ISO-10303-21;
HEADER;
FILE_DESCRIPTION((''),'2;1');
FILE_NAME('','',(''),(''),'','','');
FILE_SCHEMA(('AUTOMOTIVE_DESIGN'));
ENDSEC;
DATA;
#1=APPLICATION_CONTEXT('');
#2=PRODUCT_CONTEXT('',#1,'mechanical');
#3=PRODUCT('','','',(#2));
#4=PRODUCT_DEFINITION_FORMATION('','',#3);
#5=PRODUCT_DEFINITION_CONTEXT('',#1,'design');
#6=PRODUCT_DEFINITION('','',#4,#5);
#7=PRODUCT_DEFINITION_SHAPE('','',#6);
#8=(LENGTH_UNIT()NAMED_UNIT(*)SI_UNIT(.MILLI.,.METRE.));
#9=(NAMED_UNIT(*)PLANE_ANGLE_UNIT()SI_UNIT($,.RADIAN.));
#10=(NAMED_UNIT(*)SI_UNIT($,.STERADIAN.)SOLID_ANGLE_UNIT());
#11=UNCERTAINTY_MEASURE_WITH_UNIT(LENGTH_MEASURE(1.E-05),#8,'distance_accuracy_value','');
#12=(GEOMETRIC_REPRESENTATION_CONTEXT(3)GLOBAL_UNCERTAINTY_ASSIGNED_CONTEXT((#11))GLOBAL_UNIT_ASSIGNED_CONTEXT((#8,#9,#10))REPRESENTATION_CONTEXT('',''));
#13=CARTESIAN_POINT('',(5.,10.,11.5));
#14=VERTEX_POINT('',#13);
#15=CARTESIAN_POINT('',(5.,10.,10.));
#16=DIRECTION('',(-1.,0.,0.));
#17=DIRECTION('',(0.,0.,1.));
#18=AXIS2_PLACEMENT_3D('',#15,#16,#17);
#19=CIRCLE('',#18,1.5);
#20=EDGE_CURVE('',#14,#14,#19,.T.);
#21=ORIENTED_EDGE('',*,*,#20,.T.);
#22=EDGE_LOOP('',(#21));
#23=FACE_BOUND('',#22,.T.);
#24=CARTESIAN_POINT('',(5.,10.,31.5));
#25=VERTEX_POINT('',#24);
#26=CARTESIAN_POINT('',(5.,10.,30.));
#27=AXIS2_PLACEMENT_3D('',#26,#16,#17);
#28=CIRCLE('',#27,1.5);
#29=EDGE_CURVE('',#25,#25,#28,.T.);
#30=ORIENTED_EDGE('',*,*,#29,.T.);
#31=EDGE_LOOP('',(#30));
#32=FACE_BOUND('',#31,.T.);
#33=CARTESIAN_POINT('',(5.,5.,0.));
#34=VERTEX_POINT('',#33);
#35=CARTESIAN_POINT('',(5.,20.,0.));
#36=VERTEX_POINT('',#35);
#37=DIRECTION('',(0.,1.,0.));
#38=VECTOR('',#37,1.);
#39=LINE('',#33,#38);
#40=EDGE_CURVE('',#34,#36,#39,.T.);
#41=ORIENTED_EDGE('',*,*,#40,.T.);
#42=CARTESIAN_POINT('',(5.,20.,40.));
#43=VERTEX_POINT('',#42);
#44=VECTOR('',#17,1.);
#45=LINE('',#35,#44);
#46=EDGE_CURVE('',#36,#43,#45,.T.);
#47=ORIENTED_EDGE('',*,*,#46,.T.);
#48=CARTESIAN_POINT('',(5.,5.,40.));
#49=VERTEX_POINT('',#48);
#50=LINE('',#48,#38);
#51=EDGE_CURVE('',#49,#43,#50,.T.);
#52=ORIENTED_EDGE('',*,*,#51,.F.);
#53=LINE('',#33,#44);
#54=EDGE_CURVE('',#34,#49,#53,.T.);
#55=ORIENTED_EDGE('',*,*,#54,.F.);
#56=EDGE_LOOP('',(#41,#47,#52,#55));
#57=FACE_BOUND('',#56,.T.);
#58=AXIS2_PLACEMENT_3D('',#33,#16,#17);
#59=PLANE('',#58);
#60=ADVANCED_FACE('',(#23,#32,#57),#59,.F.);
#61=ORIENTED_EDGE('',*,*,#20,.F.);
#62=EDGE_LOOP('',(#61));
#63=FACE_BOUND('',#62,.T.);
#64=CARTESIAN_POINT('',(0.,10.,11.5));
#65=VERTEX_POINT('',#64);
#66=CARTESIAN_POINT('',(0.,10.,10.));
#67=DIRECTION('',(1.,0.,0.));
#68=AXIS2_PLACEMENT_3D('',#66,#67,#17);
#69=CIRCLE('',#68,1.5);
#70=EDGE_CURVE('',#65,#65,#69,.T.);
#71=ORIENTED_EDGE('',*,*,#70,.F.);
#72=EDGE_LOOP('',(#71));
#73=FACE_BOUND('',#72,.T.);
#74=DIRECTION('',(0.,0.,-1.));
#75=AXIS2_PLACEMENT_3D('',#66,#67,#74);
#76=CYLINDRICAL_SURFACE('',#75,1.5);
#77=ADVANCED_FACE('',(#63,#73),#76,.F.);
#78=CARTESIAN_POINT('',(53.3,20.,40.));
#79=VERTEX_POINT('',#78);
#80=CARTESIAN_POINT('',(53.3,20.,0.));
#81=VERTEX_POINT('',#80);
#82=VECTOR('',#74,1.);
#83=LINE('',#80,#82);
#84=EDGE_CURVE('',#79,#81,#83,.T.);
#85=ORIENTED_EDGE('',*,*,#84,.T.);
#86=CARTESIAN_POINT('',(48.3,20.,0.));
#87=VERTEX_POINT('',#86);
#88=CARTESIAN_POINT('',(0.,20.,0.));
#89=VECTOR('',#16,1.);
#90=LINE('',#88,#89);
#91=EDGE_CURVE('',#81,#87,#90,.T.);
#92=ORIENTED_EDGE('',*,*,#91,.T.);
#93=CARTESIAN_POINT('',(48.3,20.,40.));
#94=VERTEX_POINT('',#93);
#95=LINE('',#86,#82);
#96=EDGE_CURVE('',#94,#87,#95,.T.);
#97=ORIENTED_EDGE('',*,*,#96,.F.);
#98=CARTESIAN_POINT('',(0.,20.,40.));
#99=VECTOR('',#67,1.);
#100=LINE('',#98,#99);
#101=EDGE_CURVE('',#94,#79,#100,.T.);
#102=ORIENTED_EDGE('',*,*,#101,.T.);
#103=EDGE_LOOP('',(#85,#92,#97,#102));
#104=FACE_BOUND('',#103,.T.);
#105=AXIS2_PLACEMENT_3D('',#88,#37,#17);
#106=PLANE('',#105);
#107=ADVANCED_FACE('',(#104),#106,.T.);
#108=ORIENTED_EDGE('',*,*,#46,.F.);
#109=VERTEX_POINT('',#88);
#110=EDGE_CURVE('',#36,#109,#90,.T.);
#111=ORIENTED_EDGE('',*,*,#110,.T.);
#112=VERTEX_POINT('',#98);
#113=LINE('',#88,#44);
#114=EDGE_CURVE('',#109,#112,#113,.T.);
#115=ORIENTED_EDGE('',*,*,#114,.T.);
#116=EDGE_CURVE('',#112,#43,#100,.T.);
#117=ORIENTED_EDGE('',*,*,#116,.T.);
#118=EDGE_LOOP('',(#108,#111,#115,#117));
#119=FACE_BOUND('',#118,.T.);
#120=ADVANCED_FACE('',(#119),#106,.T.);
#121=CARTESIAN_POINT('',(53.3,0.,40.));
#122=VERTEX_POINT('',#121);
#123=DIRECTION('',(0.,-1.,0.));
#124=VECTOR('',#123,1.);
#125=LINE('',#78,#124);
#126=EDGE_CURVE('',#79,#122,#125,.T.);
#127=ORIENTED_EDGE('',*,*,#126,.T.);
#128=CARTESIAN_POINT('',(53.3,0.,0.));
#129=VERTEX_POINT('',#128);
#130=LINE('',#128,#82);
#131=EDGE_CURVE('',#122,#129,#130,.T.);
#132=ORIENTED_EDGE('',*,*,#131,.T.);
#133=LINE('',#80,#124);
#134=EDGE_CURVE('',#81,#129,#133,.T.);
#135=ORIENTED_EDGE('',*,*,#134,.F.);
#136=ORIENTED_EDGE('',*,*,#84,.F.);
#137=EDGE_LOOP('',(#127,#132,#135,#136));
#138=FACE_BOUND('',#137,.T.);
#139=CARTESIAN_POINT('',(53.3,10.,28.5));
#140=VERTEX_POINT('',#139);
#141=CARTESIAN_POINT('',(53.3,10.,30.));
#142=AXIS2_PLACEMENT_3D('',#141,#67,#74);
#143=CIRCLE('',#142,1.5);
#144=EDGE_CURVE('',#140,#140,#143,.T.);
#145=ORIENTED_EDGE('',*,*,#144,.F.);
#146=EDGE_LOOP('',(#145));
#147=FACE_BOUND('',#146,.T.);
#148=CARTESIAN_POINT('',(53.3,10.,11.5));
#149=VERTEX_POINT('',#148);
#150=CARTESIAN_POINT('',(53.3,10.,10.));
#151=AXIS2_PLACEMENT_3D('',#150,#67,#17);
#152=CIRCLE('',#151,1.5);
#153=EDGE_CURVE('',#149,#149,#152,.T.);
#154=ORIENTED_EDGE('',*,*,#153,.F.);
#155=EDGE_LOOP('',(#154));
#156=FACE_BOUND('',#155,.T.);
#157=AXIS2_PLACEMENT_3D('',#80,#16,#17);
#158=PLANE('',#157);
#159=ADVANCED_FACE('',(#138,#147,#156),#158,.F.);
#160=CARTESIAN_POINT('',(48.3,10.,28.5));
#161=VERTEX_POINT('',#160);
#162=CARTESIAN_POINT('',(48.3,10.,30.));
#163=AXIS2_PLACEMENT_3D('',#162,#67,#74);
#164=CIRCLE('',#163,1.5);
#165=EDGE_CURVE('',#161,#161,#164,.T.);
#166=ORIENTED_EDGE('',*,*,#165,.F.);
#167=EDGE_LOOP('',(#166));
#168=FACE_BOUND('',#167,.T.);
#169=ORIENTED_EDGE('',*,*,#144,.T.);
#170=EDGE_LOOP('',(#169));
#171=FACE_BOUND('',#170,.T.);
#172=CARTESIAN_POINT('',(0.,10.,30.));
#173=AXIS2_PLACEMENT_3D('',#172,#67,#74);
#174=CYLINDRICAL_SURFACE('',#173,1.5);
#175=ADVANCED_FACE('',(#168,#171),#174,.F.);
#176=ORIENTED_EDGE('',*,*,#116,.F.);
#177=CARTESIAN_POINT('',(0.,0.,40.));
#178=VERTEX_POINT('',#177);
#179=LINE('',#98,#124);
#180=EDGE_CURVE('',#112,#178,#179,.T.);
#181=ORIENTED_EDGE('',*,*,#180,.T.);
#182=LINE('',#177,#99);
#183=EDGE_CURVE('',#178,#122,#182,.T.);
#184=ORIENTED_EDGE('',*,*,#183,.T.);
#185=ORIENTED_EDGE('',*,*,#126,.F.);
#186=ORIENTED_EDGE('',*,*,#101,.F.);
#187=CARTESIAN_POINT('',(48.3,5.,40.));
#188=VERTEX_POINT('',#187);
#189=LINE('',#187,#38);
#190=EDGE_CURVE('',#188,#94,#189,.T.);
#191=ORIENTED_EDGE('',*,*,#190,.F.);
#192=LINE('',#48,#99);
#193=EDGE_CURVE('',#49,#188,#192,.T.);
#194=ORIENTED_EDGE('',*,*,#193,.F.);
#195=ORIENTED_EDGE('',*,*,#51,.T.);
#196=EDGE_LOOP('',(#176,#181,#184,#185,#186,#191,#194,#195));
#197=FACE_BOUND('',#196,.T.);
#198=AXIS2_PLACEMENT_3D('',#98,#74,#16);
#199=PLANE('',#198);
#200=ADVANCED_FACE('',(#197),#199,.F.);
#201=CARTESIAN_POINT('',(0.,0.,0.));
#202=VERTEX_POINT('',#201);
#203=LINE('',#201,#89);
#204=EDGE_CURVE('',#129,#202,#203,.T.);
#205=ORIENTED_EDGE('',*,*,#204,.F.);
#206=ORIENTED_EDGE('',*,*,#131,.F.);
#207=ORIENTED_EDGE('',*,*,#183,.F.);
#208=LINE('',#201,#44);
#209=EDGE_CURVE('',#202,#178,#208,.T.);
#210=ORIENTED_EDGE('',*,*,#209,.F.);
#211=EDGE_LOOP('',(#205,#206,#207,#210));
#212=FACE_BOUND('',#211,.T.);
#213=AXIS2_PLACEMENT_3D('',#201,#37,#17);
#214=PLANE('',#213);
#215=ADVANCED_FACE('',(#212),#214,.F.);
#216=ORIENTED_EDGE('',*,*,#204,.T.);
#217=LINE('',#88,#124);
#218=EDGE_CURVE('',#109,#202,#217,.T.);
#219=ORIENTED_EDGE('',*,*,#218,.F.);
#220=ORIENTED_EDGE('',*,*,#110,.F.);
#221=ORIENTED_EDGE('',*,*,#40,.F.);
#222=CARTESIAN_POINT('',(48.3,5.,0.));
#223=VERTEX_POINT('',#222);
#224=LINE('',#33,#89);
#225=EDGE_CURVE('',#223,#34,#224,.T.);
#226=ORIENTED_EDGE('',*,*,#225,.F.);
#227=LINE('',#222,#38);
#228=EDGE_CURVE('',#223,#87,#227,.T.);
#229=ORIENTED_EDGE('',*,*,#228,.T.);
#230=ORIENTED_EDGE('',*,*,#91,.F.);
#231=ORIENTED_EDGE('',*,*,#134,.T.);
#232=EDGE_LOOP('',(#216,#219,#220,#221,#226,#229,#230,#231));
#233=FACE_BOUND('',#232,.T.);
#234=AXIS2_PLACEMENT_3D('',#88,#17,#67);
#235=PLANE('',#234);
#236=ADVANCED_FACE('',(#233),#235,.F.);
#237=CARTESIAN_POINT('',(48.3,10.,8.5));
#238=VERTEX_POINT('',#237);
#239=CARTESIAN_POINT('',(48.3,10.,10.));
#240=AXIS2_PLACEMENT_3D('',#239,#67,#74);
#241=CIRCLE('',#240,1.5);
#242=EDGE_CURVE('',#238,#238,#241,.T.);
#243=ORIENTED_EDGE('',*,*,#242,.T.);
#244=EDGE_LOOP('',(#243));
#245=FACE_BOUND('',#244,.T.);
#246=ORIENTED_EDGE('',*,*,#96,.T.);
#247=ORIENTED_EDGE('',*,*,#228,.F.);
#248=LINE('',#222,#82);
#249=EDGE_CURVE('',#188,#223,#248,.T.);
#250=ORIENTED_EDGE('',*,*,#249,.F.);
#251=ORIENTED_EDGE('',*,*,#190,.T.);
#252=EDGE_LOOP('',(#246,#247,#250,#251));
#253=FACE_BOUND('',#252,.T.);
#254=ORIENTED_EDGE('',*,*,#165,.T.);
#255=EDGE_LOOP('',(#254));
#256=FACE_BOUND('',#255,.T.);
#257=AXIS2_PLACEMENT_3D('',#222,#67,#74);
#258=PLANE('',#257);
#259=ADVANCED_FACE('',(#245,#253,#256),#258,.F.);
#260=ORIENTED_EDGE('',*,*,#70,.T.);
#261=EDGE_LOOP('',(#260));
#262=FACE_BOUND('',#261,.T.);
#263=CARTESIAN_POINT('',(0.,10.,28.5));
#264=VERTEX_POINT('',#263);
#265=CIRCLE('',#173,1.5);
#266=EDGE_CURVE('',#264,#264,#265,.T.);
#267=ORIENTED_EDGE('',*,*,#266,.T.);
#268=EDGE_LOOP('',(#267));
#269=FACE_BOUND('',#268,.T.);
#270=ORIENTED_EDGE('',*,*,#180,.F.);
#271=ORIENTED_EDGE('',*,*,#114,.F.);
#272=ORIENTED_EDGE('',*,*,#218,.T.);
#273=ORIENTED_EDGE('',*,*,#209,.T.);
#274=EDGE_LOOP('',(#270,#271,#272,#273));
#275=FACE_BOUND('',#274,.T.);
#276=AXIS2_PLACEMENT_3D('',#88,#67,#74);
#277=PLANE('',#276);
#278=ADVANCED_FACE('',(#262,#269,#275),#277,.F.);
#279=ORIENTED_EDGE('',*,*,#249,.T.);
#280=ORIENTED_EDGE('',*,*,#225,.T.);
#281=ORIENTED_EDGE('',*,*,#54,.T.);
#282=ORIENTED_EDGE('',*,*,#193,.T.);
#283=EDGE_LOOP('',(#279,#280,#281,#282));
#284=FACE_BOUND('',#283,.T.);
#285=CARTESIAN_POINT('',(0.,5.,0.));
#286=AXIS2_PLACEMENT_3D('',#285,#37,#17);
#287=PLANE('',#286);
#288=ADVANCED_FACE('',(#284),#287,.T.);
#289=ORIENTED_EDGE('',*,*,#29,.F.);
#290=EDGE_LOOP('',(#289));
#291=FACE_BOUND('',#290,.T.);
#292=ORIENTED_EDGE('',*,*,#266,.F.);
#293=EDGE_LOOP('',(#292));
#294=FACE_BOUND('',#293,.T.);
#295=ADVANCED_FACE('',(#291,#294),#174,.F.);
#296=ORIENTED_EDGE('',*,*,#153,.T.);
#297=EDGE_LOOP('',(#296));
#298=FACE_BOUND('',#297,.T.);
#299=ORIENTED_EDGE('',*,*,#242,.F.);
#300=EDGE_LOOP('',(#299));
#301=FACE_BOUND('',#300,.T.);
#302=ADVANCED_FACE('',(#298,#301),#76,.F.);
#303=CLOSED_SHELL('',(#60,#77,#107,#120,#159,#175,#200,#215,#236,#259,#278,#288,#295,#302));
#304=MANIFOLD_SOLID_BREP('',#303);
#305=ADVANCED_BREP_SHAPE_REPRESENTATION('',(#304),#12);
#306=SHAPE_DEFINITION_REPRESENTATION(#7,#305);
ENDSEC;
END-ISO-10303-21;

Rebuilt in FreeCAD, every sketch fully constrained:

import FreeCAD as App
import Part
import Sketcher

V = App.Vector


def add_polygon(sketch, points):
    """Adds a closed chain of lines whose ends are joined by coincident constraints."""
    first, n = sketch.GeometryCount, len(points)
    for a, b in zip(points, points[1:] + points[:1]):
        sketch.addGeometry(Part.LineSegment(App.Vector(*a, 0), App.Vector(*b, 0)), False)
    for i in range(n):
        sketch.addConstraint(Sketcher.Constraint("Coincident", first + i, 2, first + (i + 1) % n, 1))

doc = App.newDocument("Part")
body = doc.addObject("PartDesign::Body", "Body")

sketch1 = body.newObject("Sketcher::SketchObject", "Sketch")
sketch1.AttachmentSupport = (doc.getObject("XZ_Plane"), [""])
sketch1.MapMode = "FlatFace"
add_polygon(sketch1, [(0, 0), (0, 40), (53.3, 40), (53.3, 0)])
sketch1.addConstraint(Sketcher.Constraint("Vertical", 0))
sketch1.addConstraint(Sketcher.Constraint("Horizontal", 1))
sketch1.addConstraint(Sketcher.Constraint("Vertical", 2))
sketch1.addConstraint(Sketcher.Constraint("Horizontal", 3))
sketch1.addConstraint(Sketcher.Constraint("Coincident", 3, 2, -1, 1))
sketch1.addConstraint(Sketcher.Constraint("DistanceY", 0, 1, 0, 2, 40.0))
sketch1.addConstraint(Sketcher.Constraint("DistanceX", 1, 1, 1, 2, 53.3))
pad1 = body.newObject("PartDesign::Pad", "Pad")
pad1.Profile = sketch1
pad1.Length = 20
pad1.Reversed = True

sketch2 = body.newObject("Sketcher::SketchObject", "Sketch001")
sketch2.AttachmentSupport = (doc.getObject("XZ_Plane"), [""])
sketch2.MapMode = "FlatFace"
sketch2.AttachmentOffset = App.Placement(V(0, 0, -20), App.Rotation())
add_polygon(sketch2, [(5, 0), (5, 40), (48.3, 40), (48.3, 0)])
sketch2.addConstraint(Sketcher.Constraint("Vertical", 0))
sketch2.addConstraint(Sketcher.Constraint("Horizontal", 1))
sketch2.addConstraint(Sketcher.Constraint("Vertical", 2))
sketch2.addConstraint(Sketcher.Constraint("Horizontal", 3))
sketch2.addConstraint(Sketcher.Constraint("PointOnObject", 2, 2, -1))
sketch2.addConstraint(Sketcher.Constraint("DistanceY", 0, 1, 0, 2, 40.0))
sketch2.addConstraint(Sketcher.Constraint("DistanceX", 1, 1, 1, 2, 43.3))
sketch2.addConstraint(Sketcher.Constraint("DistanceX", -1, 1, 0, 2, 5.0))
pocket1 = body.newObject("PartDesign::Pocket", "Pocket")
pocket1.Profile = sketch2
pocket1.Length = 15
pocket1.Reversed = True

sketch3 = body.newObject("Sketcher::SketchObject", "Sketch002")
sketch3.AttachmentSupport = (doc.getObject("YZ_Plane"), [""])
sketch3.MapMode = "FlatFace"
sketch3.AttachmentOffset = App.Placement(V(0, 0, 53.3), App.Rotation())
sketch3.addGeometry(Part.Circle(V(10, 30, 0), V(0, 0, 1), 1.5), False)
sketch3.addGeometry(Part.Circle(V(10, 10, 0), V(0, 0, 1), 1.5), False)
sketch3.addConstraint(Sketcher.Constraint("Equal", 0, 1))
sketch3.addConstraint(Sketcher.Constraint("Vertical", 0, 3, 1, 3))
sketch3.addConstraint(Sketcher.Constraint("Diameter", 0, 3.0))
sketch3.addConstraint(Sketcher.Constraint("DistanceX", -1, 1, 0, 3, 10.0))
sketch3.addConstraint(Sketcher.Constraint("DistanceY", -1, 1, 0, 3, 30.0))
sketch3.addConstraint(Sketcher.Constraint("DistanceY", -1, 1, 1, 3, 10.0))
pocket2 = body.newObject("PartDesign::Pocket", "Pocket001")
pocket2.Profile = sketch3
pocket2.Type = "ThroughAll"

doc.recompute()
